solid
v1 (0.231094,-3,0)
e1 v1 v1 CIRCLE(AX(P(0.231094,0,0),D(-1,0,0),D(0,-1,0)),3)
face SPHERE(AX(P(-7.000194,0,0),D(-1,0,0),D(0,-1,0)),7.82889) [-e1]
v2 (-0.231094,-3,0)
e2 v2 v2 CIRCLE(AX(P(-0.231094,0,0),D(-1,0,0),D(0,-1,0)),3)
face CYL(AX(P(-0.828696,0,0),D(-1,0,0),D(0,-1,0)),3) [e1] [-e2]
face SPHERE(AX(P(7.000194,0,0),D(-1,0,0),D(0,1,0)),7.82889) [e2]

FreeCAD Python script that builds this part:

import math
import FreeCAD as App
import Part
import Sketcher
from FreeCAD import Vector

doc = App.newDocument("Part")
body = doc.addObject("PartDesign::Body", "Body")

# Sketch on XY plane
sketch1 = body.newObject("Sketcher::SketchObject", "Sketch")
sketch1.AttachmentSupport = (doc.getObject("XY_Plane"), [""])
sketch1.MapMode = "FlatFace"
sketch1.addGeometry(Part.LineSegment(Vector(-0.83, 0, 0), Vector(0.83, 0, 0)), False)
sketch1.addGeometry(Part.ArcOfCircle(Part.Circle(Vector(-7, 0, 0), Vector(0, 0, 1), 7.83), math.radians(0), math.radians(23)), False)
sketch1.addGeometry(Part.LineSegment(Vector(0.23, 3, 0), Vector(-0.23, 3, 0)), False)
sketch1.addGeometry(Part.ArcOfCircle(Part.Circle(Vector(7, 0, 0), Vector(0, 0, 1), 7.83), math.radians(157), math.radians(180)), False)
sketch1.addConstraint(Sketcher.Constraint("Coincident", 0, 2, 1, 1))
sketch1.addConstraint(Sketcher.Constraint("Coincident", 1, 2, 2, 1))
sketch1.addConstraint(Sketcher.Constraint("Coincident", 2, 2, 3, 1))
sketch1.addConstraint(Sketcher.Constraint("Coincident", 3, 2, 0, 1))
sketch1.addConstraint(Sketcher.Constraint("Horizontal", 0))
sketch1.addConstraint(Sketcher.Constraint("Horizontal", 2))
sketch1.addConstraint(Sketcher.Constraint("Equal", 1, 3))
sketch1.addConstraint(Sketcher.Constraint("Symmetric", 1, 3, 3, 3, -1, 1))
sketch1.addConstraint(Sketcher.Constraint("PointOnObject", 1, 3, -1))
sketch1.addConstraint(Sketcher.Constraint("PointOnObject", 0, 2, -1))
sketch1.addConstraint(Sketcher.Constraint("DistanceY", -1, 1, 1, 2, 3.0))
sketch1.addConstraint(Sketcher.Constraint("Radius", 1, 7.82889))
sketch1.addConstraint(Sketcher.Constraint("DistanceX", 0, 2, 3, 3, 6.171498))
revolution = body.newObject("PartDesign::Revolution", "Revolution")
revolution.Profile = sketch1
revolution.ReferenceAxis = (sketch1, ["H_Axis"])
revolution.Angle = 360

doc.recompute()
